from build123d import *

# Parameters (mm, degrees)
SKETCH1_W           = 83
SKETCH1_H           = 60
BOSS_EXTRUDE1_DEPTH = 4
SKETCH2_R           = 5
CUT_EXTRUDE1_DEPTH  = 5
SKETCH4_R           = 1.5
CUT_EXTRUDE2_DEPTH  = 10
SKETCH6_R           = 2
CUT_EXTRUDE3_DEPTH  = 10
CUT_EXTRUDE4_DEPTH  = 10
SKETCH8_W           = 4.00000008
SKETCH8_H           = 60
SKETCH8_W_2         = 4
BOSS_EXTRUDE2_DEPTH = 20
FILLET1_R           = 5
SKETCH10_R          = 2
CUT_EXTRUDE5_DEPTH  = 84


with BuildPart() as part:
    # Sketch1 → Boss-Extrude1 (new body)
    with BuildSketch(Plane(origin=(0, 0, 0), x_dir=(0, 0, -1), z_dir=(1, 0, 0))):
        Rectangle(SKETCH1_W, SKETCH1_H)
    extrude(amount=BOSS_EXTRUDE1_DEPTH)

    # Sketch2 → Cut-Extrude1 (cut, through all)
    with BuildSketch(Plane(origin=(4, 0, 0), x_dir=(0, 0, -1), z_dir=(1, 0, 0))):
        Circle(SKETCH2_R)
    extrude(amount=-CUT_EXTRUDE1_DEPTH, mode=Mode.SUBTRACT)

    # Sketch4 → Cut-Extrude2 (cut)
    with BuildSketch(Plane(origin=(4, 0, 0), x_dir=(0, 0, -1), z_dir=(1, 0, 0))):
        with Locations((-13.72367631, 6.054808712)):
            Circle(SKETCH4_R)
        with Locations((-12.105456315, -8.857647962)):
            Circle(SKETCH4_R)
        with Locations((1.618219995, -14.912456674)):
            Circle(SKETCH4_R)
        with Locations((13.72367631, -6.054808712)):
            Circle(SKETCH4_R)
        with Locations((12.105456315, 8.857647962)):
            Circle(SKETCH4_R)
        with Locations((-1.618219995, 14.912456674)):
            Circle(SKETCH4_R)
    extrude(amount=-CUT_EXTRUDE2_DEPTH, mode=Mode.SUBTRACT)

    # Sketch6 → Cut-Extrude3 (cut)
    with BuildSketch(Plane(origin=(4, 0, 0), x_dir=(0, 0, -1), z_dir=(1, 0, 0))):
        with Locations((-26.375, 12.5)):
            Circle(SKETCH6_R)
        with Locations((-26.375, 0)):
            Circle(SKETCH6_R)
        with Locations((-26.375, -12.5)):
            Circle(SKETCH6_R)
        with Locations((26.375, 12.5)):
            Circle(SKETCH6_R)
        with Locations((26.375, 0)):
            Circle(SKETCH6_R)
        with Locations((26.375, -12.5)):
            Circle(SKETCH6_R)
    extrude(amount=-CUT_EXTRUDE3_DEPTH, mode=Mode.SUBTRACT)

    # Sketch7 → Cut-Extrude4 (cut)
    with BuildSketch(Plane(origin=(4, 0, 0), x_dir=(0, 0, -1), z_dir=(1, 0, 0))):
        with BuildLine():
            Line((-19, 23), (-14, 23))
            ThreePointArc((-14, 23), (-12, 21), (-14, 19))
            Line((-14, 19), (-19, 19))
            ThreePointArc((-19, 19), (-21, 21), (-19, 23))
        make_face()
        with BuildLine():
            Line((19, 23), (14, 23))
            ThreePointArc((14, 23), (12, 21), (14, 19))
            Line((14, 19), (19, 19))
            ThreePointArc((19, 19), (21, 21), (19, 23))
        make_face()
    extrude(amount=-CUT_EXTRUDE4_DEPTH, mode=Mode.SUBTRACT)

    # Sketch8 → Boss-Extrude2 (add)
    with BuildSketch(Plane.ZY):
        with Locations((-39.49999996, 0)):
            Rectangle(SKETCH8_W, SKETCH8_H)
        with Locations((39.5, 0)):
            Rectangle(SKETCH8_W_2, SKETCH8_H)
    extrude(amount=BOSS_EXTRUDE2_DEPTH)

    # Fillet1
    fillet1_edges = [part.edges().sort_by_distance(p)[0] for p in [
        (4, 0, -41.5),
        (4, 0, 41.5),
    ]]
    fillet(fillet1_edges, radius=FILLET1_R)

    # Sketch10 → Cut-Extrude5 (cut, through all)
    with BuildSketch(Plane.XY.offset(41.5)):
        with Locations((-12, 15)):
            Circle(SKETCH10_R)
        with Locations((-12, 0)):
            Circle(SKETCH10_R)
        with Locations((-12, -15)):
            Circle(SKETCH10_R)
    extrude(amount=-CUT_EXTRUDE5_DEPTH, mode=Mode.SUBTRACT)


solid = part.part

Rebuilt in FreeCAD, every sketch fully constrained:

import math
import FreeCAD as App
import Part
import Sketcher

V = App.Vector


def edges_at(feature, points):
    """Names of the edges that pass closest to the given points."""
    edges = feature.Shape.Edges
    near = lambda p: min(range(len(edges)), key=lambda i: edges[i].distToShape(Part.Vertex(*p))[0])
    return sorted({f"Edge{near(p) + 1}" for p in points})


def add_polygon(sketch, points):
    """Adds a closed chain of lines whose ends are joined by coincident constraints."""
    first, n = sketch.GeometryCount, len(points)
    for a, b in zip(points, points[1:] + points[:1]):
        sketch.addGeometry(Part.LineSegment(App.Vector(*a, 0), App.Vector(*b, 0)), False)
    for i in range(n):
        sketch.addConstraint(Sketcher.Constraint("Coincident", first + i, 2, first + (i + 1) % n, 1))

doc = App.newDocument("Part")
body = doc.addObject("PartDesign::Body", "Body")

# Sketch on YZ plane
sketch1 = doc.addObject("Sketcher::SketchObject", "Sketch")
body.addObject(sketch1)
sketch1.AttachmentSupport = (doc.YZ_Plane, [""])
sketch1.MapMode = "FlatFace"
add_polygon(sketch1, [(30, 41.5), (-30, 41.5), (-30, -41.5), (30, -41.5)])  # lines 0-3
sketch1.addConstraint([
    Sketcher.Constraint("Horizontal", 0),
    Sketcher.Constraint("Vertical", 1),
    Sketcher.Constraint("Horizontal", 2),
    Sketcher.Constraint("Vertical", 3),
    Sketcher.Constraint("Symmetric", 0, 2, 2, 2, -1, 1),
    Sketcher.Constraint("DistanceX", 0, 2, 0, 1, 60.0),
    Sketcher.Constraint("DistanceY", 1, 2, 1, 1, 83.0),
])
pad1 = doc.addObject("PartDesign::Pad", "Pad")
body.addObject(pad1)
pad1.Profile = sketch1
pad1.Length = 4

# Sketch on YZ plane
sketch2 = doc.addObject("Sketcher::SketchObject", "Sketch001")
body.addObject(sketch2)
sketch2.AttachmentSupport = (doc.YZ_Plane, [""])
sketch2.MapMode = "FlatFace"
sketch2.AttachmentOffset = App.Placement(V(0, 0, 4), App.Rotation())
sketch2.addGeometry(Part.Circle(V(0, 0, 0), V(0, 0, 1), 5), False)
sketch2.addConstraint([
    Sketcher.Constraint("Coincident", 0, 3, -1, 1),
    Sketcher.Constraint("Diameter", 0, 10.0),
])
pocket1 = doc.addObject("PartDesign::Pocket", "Pocket")
body.addObject(pocket1)
pocket1.Profile = sketch2
pocket1.Type = "ThroughAll"

# Sketch on YZ plane
sketch3 = doc.addObject("Sketcher::SketchObject", "Sketch002")
body.addObject(sketch3)
sketch3.AttachmentSupport = (doc.YZ_Plane, [""])
sketch3.MapMode = "FlatFace"
sketch3.AttachmentOffset = App.Placement(V(0, 0, 4), App.Rotation())
sketch3.addGeometry([
    Part.Circle(V(6.054809, 13.723676, 0), V(0, 0, 1), 1.5),  # 0
    Part.Circle(V(-8.857648, 12.105456, 0), V(0, 0, 1), 1.5),  # 1
    Part.Circle(V(-14.912457, -1.61822, 0), V(0, 0, 1), 1.5),  # 2
    Part.Circle(V(-6.054809, -13.723676, 0), V(0, 0, 1), 1.5),  # 3
    Part.Circle(V(8.857648, -12.105456, 0), V(0, 0, 1), 1.5),  # 4
    Part.Circle(V(14.912457, 1.61822, 0), V(0, 0, 1), 1.5),  # 5
], False)
sketch3.addConstraint([
    Sketcher.Constraint("Equal", 0, 1),
    Sketcher.Constraint("Equal", 1, 2),
    Sketcher.Constraint("Equal", 2, 3),
    Sketcher.Constraint("Equal", 3, 4),
    Sketcher.Constraint("Equal", 4, 5),
    Sketcher.Constraint("Symmetric", 0, 3, 3, 3, -1, 1),
    Sketcher.Constraint("Symmetric", 1, 3, 4, 3, -1, 1),
    Sketcher.Constraint("Symmetric", 2, 3, 5, 3, -1, 1),
    Sketcher.Constraint("Diameter", 0, 3.0),
    Sketcher.Constraint("DistanceX", -1, 1, 0, 3, 6.054809),
    Sketcher.Constraint("DistanceY", 2, 3, -1, 1, 1.61822),
    Sketcher.Constraint("DistanceY", 1, 3, 0, 3, 1.61822),
    Sketcher.Constraint("DistanceX", 2, 3, 1, 3, 6.054809),
    Sketcher.Constraint("DistanceX", 1, 3, 3, 3, 2.802839),
    Sketcher.Constraint("DistanceY", -1, 1, 0, 3, 13.723676),
])
pocket2 = doc.addObject("PartDesign::Pocket", "Pocket001")
body.addObject(pocket2)
pocket2.Profile = sketch3
pocket2.Length = 10

# Sketch on YZ plane
sketch4 = doc.addObject("Sketcher::SketchObject", "Sketch003")
body.addObject(sketch4)
sketch4.AttachmentSupport = (doc.YZ_Plane, [""])
sketch4.MapMode = "FlatFace"
sketch4.AttachmentOffset = App.Placement(V(0, 0, 4), App.Rotation())
sketch4.addGeometry([
    Part.Circle(V(12.5, 26.375, 0), V(0, 0, 1), 2),  # 0
    Part.Circle(V(0, 26.375, 0), V(0, 0, 1), 2),  # 1
    Part.Circle(V(-12.5, 26.375, 0), V(0, 0, 1), 2),  # 2
    Part.Circle(V(12.5, -26.375, 0), V(0, 0, 1), 2),  # 3
    Part.Circle(V(0, -26.375, 0), V(0, 0, 1), 2),  # 4
    Part.Circle(V(-12.5, -26.375, 0), V(0, 0, 1), 2),  # 5
], False)
sketch4.addConstraint([
    Sketcher.Constraint("Equal", 0, 1),
    Sketcher.Constraint("Equal", 1, 2),
    Sketcher.Constraint("Equal", 2, 3),
    Sketcher.Constraint("Equal", 3, 4),
    Sketcher.Constraint("Equal", 4, 5),
    Sketcher.Constraint("Symmetric", 2, 3, 3, 3, -1, 1),
    Sketcher.Constraint("Symmetric", 1, 3, 4, 3, -1, 1),
    Sketcher.Constraint("Symmetric", 0, 3, 5, 3, -1, 1),
    Sketcher.Constraint("Symmetric", 0, 3, 2, 3, -2),
    Sketcher.Constraint("PointOnObject", 1, 3, -2),
    Sketcher.Constraint("Horizontal", 0, 3, 1, 3),
    Sketcher.Constraint("Diameter", 0, 4.0),
    Sketcher.Constraint("DistanceX", 2, 3, 0, 3, 25.0),
    Sketcher.Constraint("DistanceY", 3, 3, 0, 3, 52.75),
])
pocket3 = doc.addObject("PartDesign::Pocket", "Pocket002")
body.addObject(pocket3)
pocket3.Profile = sketch4
pocket3.Length = 10

# Sketch on YZ plane
sketch5 = doc.addObject("Sketcher::SketchObject", "Sketch004")
body.addObject(sketch5)
sketch5.AttachmentSupport = (doc.YZ_Plane, [""])
sketch5.MapMode = "FlatFace"
sketch5.AttachmentOffset = App.Placement(V(0, 0, 4), App.Rotation())
sketch5.addGeometry([
    Part.LineSegment(V(23, 14, 0), V(23, 19, 0)),  # 0
    Part.ArcOfCircle(Part.Circle(V(21, 19, 0), V(0, 0, 1), 2), math.radians(0), math.radians(180)),  # 1
    Part.LineSegment(V(19, 19, 0), V(19, 14, 0)),  # 2
    Part.ArcOfCircle(Part.Circle(V(21, 14, 0), V(0, 0, 1), 2), math.radians(180), math.radians(360)),  # 3
    Part.LineSegment(V(23, -19, 0), V(23, -14, 0)),  # 4
    Part.ArcOfCircle(Part.Circle(V(21, -14, 0), V(0, 0, 1), 2), math.radians(0), math.radians(180)),  # 5
    Part.LineSegment(V(19, -14, 0), V(19, -19, 0)),  # 6
    Part.ArcOfCircle(Part.Circle(V(21, -19, 0), V(0, 0, 1), 2), math.radians(180), math.radians(360)),  # 7
], False)
sketch5.addConstraint([
    Sketcher.Constraint("Tangent", 0, 2, 1, 1),
    Sketcher.Constraint("Tangent", 1, 2, 2, 1),
    Sketcher.Constraint("Tangent", 2, 2, 3, 1),
    Sketcher.Constraint("Tangent", 3, 2, 0, 1),
    Sketcher.Constraint("Tangent", 4, 2, 5, 1),
    Sketcher.Constraint("Tangent", 5, 2, 6, 1),
    Sketcher.Constraint("Tangent", 6, 2, 7, 1),
    Sketcher.Constraint("Tangent", 7, 2, 4, 1),
    Sketcher.Constraint("Vertical", 0),
    Sketcher.Constraint("Vertical", 2),
    Sketcher.Constraint("Vertical", 4),
    Sketcher.Constraint("Vertical", 6),
    Sketcher.Constraint("Equal", 3, 5),
    Sketcher.Constraint("Symmetric", 3, 3, 5, 3, -1),
    Sketcher.Constraint("Equal", 2, 4),
    Sketcher.Constraint("Radius", 1, 2.0),
    Sketcher.Constraint("DistanceY", 0, 1, 0, 2, 5.0),
    Sketcher.Constraint("DistanceX", -1, 1, 1, 3, 21.0),
    Sketcher.Constraint("DistanceY", -1, 1, 1, 3, 19.0),
])
pocket4 = doc.addObject("PartDesign::Pocket", "Pocket003")
body.addObject(pocket4)
pocket4.Profile = sketch5
pocket4.Length = 10

# Sketch on YZ plane
sketch6 = doc.addObject("Sketcher::SketchObject", "Sketch005")
body.addObject(sketch6)
sketch6.AttachmentSupport = (doc.YZ_Plane, [""])
sketch6.MapMode = "FlatFace"
add_polygon(sketch6, [(30, -41.5), (-30, -41.5), (-30, -37.5), (30, -37.5)])  # lines 0-3
add_polygon(sketch6, [(30, 37.5), (-30, 37.5), (-30, 41.5), (30, 41.5)])  # lines 4-7
sketch6.addConstraint([
    Sketcher.Constraint("Horizontal", 0),
    Sketcher.Constraint("Vertical", 1),
    Sketcher.Constraint("Horizontal", 2),
    Sketcher.Constraint("Vertical", 3),
    Sketcher.Constraint("Horizontal", 4),
    Sketcher.Constraint("Vertical", 5),
    Sketcher.Constraint("Horizontal", 6),
    Sketcher.Constraint("Vertical", 7),
    Sketcher.Constraint("Symmetric", 2, 2, 4, 2, -1, 1),
    Sketcher.Constraint("Symmetric", 0, 2, 6, 2, -1, 1),
    Sketcher.Constraint("Vertical", 1, 2, 4, 2),
    Sketcher.Constraint("DistanceX", 0, 2, 0, 1, 60.0),
    Sketcher.Constraint("DistanceY", 1, 1, 1, 2, 4.0),
    Sketcher.Constraint("DistanceY", 1, 2, 4, 2, 75.0),
])
pad2 = doc.addObject("PartDesign::Pad", "Pad001")
body.addObject(pad2)
pad2.Profile = sketch6
pad2.Length = 20
pad2.Reversed = True
doc.recompute()

fillet = doc.addObject("PartDesign::Fillet", "Fillet")
body.addObject(fillet)
fillet.Base = (pad2, edges_at(pad2, [(4, 0, -41.5), (4, 0, 41.5)]))
fillet.Radius = 5

# Sketch on XY plane
sketch7 = doc.addObject("Sketcher::SketchObject", "Sketch006")
body.addObject(sketch7)
sketch7.AttachmentSupport = (doc.XY_Plane, [""])
sketch7.MapMode = "FlatFace"
sketch7.AttachmentOffset = App.Placement(V(0, 0, 41.5), App.Rotation())
sketch7.addGeometry([
    Part.Circle(V(-12, 15, 0), V(0, 0, 1), 2),
    Part.Circle(V(-12, 0, 0), V(0, 0, 1), 2),
    Part.Circle(V(-12, -15, 0), V(0, 0, 1), 2),
], False)
sketch7.addConstraint([
    Sketcher.Constraint("Equal", 0, 1),
    Sketcher.Constraint("Equal", 1, 2),
    Sketcher.Constraint("Symmetric", 0, 3, 2, 3, -1),
    Sketcher.Constraint("PointOnObject", 1, 3, -1),
    Sketcher.Constraint("Vertical", 0, 3, 1, 3),
    Sketcher.Constraint("Diameter", 0, 4.0),
    Sketcher.Constraint("DistanceX", 0, 3, -1, 1, 12.0),
    Sketcher.Constraint("DistanceY", -1, 1, 0, 3, 15.0),
])
pocket5 = doc.addObject("PartDesign::Pocket", "Pocket004")
body.addObject(pocket5)
pocket5.Profile = sketch7
pocket5.Type = "ThroughAll"

doc.recompute()
